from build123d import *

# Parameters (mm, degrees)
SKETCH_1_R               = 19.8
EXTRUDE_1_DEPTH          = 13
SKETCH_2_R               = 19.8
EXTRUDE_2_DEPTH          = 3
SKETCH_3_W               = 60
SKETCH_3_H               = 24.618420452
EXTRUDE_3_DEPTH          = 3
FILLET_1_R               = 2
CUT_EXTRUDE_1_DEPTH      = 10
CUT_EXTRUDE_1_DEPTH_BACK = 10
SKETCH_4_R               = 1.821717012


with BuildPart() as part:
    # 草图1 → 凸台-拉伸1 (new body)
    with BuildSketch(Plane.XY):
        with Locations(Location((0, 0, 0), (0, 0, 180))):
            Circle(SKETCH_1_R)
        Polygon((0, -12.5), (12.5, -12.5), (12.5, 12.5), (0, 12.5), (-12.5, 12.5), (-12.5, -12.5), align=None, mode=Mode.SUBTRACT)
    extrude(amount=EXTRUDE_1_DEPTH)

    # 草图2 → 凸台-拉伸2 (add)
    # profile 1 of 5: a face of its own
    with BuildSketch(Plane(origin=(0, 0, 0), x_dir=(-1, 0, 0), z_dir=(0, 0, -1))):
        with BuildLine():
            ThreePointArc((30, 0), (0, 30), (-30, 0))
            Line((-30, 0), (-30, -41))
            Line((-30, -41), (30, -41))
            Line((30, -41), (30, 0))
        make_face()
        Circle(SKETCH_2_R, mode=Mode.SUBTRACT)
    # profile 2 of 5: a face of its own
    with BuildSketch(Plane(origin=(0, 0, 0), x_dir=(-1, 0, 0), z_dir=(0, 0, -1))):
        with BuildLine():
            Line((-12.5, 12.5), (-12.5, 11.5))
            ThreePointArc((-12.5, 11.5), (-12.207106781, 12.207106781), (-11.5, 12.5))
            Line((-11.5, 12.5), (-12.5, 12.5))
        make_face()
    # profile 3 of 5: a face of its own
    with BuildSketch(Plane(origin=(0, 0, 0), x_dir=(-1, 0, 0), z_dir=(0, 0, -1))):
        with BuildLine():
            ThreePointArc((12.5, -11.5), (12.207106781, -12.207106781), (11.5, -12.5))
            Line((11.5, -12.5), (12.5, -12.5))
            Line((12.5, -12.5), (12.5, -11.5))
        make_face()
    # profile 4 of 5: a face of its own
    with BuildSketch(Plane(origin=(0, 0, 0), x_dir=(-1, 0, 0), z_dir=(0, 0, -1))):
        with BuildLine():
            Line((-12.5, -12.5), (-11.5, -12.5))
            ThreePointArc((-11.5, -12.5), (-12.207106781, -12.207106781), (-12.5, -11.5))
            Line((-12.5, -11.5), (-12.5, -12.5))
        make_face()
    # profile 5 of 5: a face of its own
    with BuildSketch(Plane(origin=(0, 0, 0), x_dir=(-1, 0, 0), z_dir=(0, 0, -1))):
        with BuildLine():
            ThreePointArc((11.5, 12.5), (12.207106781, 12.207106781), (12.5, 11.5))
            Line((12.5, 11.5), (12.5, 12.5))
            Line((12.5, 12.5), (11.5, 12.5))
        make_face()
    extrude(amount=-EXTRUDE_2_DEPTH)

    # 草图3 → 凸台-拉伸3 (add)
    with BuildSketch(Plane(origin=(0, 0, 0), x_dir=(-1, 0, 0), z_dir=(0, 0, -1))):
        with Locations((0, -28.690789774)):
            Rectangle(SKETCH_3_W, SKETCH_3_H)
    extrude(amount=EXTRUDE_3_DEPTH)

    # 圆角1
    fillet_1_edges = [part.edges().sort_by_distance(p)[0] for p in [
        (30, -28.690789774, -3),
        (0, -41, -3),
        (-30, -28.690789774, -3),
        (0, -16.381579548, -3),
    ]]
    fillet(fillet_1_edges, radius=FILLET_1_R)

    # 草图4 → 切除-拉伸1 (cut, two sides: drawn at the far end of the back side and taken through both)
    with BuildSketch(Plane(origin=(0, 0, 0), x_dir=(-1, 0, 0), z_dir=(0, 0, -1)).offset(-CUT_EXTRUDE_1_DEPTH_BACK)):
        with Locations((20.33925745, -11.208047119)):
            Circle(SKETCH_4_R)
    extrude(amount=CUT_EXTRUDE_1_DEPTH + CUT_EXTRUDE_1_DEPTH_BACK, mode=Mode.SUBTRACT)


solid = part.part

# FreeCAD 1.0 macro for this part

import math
import FreeCAD as App
import Part
import Sketcher

V = App.Vector


def edges_at(feature, points):
    """Names of the edges that pass closest to the given points."""
    edges = feature.Shape.Edges
    near = lambda p: min(range(len(edges)), key=lambda i: edges[i].distToShape(Part.Vertex(*p))[0])
    return sorted({f"Edge{near(p) + 1}" for p in points})


def add_polygon(sketch, points):
    """Adds a closed chain of lines whose ends are joined by coincident constraints."""
    first, n = sketch.GeometryCount, len(points)
    for a, b in zip(points, points[1:] + points[:1]):
        sketch.addGeometry(Part.LineSegment(App.Vector(*a, 0), App.Vector(*b, 0)), False)
    for i in range(n):
        sketch.addConstraint(Sketcher.Constraint("Coincident", first + i, 2, first + (i + 1) % n, 1))

doc = App.newDocument("Part")
body = doc.addObject("PartDesign::Body", "Body")

# Sketch on XY plane
sketch1 = body.newObject("Sketcher::SketchObject", "Sketch")
sketch1.AttachmentSupport = (doc.getObject("XY_Plane"), [""])
sketch1.MapMode = "FlatFace"
sketch1.addGeometry(Part.Circle(V(0, 0, 0), V(0, 0, 1), 20), False)  # 0
add_polygon(sketch1, [(12, -12), (-12, -12), (-12, 12), (12, 12)])  # lines 1-4
sketch1.addConstraint([
    Sketcher.Constraint("Horizontal", 1),
    Sketcher.Constraint("Vertical", 2),
    Sketcher.Constraint("Horizontal", 3),
    Sketcher.Constraint("Vertical", 4),
    Sketcher.Constraint("Coincident", 0, 3, -1, 1),
    Sketcher.Constraint("Symmetric", 1, 2, 3, 2, -1, 1),
    Sketcher.Constraint("Equal", 3, 2),
    Sketcher.Constraint("Diameter", 0, 39.6),
    Sketcher.Constraint("DistanceX", 1, 2, 1, 1, 25.0),
])
pad1 = body.newObject("PartDesign::Pad", "Pad")
pad1.Profile = sketch1
pad1.Length = 13

# Sketch on XY plane
sketch2 = body.newObject("Sketcher::SketchObject", "Sketch001")
sketch2.AttachmentSupport = (doc.getObject("XY_Plane"), [""])
sketch2.MapMode = "FlatFace"
sketch2.addGeometry([
    Part.ArcOfCircle(Part.Circle(V(0, 0, 0), V(0, 0, 1), 30), math.radians(0), math.radians(180)),  # 0
    Part.LineSegment(V(30, 0, 0), V(30, -41, 0)),  # 1
    Part.LineSegment(V(30, -41, 0), V(-30, -41, 0)),  # 2
    Part.LineSegment(V(-30, -41, 0), V(-30, 0, 0)),  # 3
    Part.Circle(V(0, 0, 0), V(0, 0, 1), 19.8),  # 4
    Part.LineSegment(V(12.5, 12.5, 0), V(12.5, 11.5, 0)),  # 5
    Part.ArcOfCircle(Part.Circle(V(11.5, 11.5, 0), V(0, 0, 1), 1), math.radians(0), math.radians(90)),  # 6
    Part.LineSegment(V(11.5, 12.5, 0), V(12.5, 12.5, 0)),  # 7
    Part.ArcOfCircle(Part.Circle(V(-11.5, -11.5, 0), V(0, 0, 1), 1), math.radians(-180), math.radians(-90)),  # 8
    Part.LineSegment(V(-11.5, -12.5, 0), V(-12.5, -12.5, 0)),  # 9
    Part.LineSegment(V(-12.5, -12.5, 0), V(-12.5, -11.5, 0)),  # 10
    Part.LineSegment(V(12.5, -12.5, 0), V(11.5, -12.5, 0)),  # 11
    Part.ArcOfCircle(Part.Circle(V(11.5, -11.5, 0), V(0, 0, 1), 1), math.radians(-90), math.radians(0)),  # 12
    Part.LineSegment(V(12.5, -11.5, 0), V(12.5, -12.5, 0)),  # 13
    Part.ArcOfCircle(Part.Circle(V(-11.5, 11.5, 0), V(0, 0, 1), 1), math.radians(90), math.radians(180)),  # 14
    Part.LineSegment(V(-12.5, 11.5, 0), V(-12.5, 12.5, 0)),  # 15
    Part.LineSegment(V(-12.5, 12.5, 0), V(-11.5, 12.5, 0)),  # 16
], False)
sketch2.addConstraint([
    Sketcher.Constraint("Tangent", 0, 1, 1, 1),
    Sketcher.Constraint("Coincident", 1, 2, 2, 1),
    Sketcher.Constraint("Coincident", 2, 2, 3, 1),
    Sketcher.Constraint("Tangent", 3, 2, 0, 2),
    Sketcher.Constraint("Tangent", 5, 2, 6, 1),
    Sketcher.Constraint("Tangent", 6, 2, 7, 1),
    Sketcher.Constraint("Coincident", 7, 2, 5, 1),
    Sketcher.Constraint("Tangent", 8, 2, 9, 1),
    Sketcher.Constraint("Coincident", 9, 2, 10, 1),
    Sketcher.Constraint("Tangent", 10, 2, 8, 1),
    Sketcher.Constraint("Tangent", 11, 2, 12, 1),
    Sketcher.Constraint("Tangent", 12, 2, 13, 1),
    Sketcher.Constraint("Coincident", 13, 2, 11, 1),
    Sketcher.Constraint("Tangent", 14, 2, 15, 1),
    Sketcher.Constraint("Coincident", 15, 2, 16, 1),
    Sketcher.Constraint("Tangent", 16, 2, 14, 1),
    Sketcher.Constraint("Vertical", 1),
    Sketcher.Constraint("Horizontal", 2),
    Sketcher.Constraint("Vertical", 3),
    Sketcher.Constraint("Vertical", 5),
    Sketcher.Constraint("Horizontal", 7),
    Sketcher.Constraint("Horizontal", 9),
    Sketcher.Constraint("Vertical", 10),
    Sketcher.Constraint("Horizontal", 11),
    Sketcher.Constraint("Vertical", 13),
    Sketcher.Constraint("Vertical", 15),
    Sketcher.Constraint("Horizontal", 16),
    Sketcher.Constraint("Coincident", 0, 3, -1, 1),
    Sketcher.Constraint("Coincident", 4, 3, -1, 1),
    Sketcher.Constraint("Equal", 6, 8),
    Sketcher.Constraint("Equal", 8, 12),
    Sketcher.Constraint("Equal", 12, 14),
    Sketcher.Constraint("Symmetric", 6, 3, 8, 3, -1, 1),
    Sketcher.Constraint("Symmetric", 12, 3, 14, 3, -1, 1),
    Sketcher.Constraint("Symmetric", 8, 3, 12, 3, -2),
    Sketcher.Constraint("Radius", 0, 30.0),
    Sketcher.Constraint("Radius", 6, 1.0),
    Sketcher.Constraint("Diameter", 4, 39.6),
    Sketcher.Constraint("DistanceY", 1, 2, 1, 1, 41.0),
    Sketcher.Constraint("DistanceX", 8, 3, 6, 3, 23.0),
    Sketcher.Constraint("DistanceY", 8, 3, 6, 3, 23.0),
])
pad2 = body.newObject("PartDesign::Pad", "Pad001")
pad2.Profile = sketch2
pad2.Length = 3

# Sketch on XY plane
sketch3 = body.newObject("Sketcher::SketchObject", "Sketch002")
sketch3.AttachmentSupport = (doc.getObject("XY_Plane"), [""])
sketch3.MapMode = "FlatFace"
add_polygon(sketch3, [(30, -16), (30, -41), (-30, -41), (-30, -16)])  # lines 0-3
sketch3.addConstraint([
    Sketcher.Constraint("Vertical", 0),
    Sketcher.Constraint("Horizontal", 1),
    Sketcher.Constraint("Vertical", 2),
    Sketcher.Constraint("Horizontal", 3),
    Sketcher.Constraint("DistanceX", 1, 2, 1, 1, 60.0),
    Sketcher.Constraint("DistanceX", -1, 1, 0, 2, 30.0),
    Sketcher.Constraint("DistanceY", 0, 2, -1, 1, 41.0),
    Sketcher.Constraint("DistanceY", 0, 2, 0, 1, 24.61842),
])
pad3 = body.newObject("PartDesign::Pad", "Pad002")
pad3.Profile = sketch3
pad3.Length = 3
pad3.Reversed = True
doc.recompute()

fillet = body.newObject("PartDesign::Fillet", "Fillet")
fillet.Base = (pad3, edges_at(pad3, [
    (30, -28.691, -3),
    (0, -41, -3),
    (-30, -28.691, -3),
    (0, -16.382, -3),
]))
fillet.Radius = 2

# Sketch on XY plane
sketch4 = body.newObject("Sketcher::SketchObject", "Sketch003")
sketch4.AttachmentSupport = (doc.getObject("XY_Plane"), [""])
sketch4.MapMode = "FlatFace"
sketch4.addGeometry(Part.Circle(V(-20.3, -11.2, 0), V(0, 0, 1), 1.8), False)
sketch4.addConstraint([
    Sketcher.Constraint("Diameter", 0, 3.643434),
    Sketcher.Constraint("DistanceX", 0, 3, -1, 1, 20.339257),
    Sketcher.Constraint("DistanceY", 0, 3, -1, 1, 11.208047),
])
pocket1 = body.newObject("PartDesign::Pocket", "Pocket")
pocket1.Profile = sketch4
pocket1.Type = "ThroughAll"
pocket1.Midplane = True

doc.recompute()
